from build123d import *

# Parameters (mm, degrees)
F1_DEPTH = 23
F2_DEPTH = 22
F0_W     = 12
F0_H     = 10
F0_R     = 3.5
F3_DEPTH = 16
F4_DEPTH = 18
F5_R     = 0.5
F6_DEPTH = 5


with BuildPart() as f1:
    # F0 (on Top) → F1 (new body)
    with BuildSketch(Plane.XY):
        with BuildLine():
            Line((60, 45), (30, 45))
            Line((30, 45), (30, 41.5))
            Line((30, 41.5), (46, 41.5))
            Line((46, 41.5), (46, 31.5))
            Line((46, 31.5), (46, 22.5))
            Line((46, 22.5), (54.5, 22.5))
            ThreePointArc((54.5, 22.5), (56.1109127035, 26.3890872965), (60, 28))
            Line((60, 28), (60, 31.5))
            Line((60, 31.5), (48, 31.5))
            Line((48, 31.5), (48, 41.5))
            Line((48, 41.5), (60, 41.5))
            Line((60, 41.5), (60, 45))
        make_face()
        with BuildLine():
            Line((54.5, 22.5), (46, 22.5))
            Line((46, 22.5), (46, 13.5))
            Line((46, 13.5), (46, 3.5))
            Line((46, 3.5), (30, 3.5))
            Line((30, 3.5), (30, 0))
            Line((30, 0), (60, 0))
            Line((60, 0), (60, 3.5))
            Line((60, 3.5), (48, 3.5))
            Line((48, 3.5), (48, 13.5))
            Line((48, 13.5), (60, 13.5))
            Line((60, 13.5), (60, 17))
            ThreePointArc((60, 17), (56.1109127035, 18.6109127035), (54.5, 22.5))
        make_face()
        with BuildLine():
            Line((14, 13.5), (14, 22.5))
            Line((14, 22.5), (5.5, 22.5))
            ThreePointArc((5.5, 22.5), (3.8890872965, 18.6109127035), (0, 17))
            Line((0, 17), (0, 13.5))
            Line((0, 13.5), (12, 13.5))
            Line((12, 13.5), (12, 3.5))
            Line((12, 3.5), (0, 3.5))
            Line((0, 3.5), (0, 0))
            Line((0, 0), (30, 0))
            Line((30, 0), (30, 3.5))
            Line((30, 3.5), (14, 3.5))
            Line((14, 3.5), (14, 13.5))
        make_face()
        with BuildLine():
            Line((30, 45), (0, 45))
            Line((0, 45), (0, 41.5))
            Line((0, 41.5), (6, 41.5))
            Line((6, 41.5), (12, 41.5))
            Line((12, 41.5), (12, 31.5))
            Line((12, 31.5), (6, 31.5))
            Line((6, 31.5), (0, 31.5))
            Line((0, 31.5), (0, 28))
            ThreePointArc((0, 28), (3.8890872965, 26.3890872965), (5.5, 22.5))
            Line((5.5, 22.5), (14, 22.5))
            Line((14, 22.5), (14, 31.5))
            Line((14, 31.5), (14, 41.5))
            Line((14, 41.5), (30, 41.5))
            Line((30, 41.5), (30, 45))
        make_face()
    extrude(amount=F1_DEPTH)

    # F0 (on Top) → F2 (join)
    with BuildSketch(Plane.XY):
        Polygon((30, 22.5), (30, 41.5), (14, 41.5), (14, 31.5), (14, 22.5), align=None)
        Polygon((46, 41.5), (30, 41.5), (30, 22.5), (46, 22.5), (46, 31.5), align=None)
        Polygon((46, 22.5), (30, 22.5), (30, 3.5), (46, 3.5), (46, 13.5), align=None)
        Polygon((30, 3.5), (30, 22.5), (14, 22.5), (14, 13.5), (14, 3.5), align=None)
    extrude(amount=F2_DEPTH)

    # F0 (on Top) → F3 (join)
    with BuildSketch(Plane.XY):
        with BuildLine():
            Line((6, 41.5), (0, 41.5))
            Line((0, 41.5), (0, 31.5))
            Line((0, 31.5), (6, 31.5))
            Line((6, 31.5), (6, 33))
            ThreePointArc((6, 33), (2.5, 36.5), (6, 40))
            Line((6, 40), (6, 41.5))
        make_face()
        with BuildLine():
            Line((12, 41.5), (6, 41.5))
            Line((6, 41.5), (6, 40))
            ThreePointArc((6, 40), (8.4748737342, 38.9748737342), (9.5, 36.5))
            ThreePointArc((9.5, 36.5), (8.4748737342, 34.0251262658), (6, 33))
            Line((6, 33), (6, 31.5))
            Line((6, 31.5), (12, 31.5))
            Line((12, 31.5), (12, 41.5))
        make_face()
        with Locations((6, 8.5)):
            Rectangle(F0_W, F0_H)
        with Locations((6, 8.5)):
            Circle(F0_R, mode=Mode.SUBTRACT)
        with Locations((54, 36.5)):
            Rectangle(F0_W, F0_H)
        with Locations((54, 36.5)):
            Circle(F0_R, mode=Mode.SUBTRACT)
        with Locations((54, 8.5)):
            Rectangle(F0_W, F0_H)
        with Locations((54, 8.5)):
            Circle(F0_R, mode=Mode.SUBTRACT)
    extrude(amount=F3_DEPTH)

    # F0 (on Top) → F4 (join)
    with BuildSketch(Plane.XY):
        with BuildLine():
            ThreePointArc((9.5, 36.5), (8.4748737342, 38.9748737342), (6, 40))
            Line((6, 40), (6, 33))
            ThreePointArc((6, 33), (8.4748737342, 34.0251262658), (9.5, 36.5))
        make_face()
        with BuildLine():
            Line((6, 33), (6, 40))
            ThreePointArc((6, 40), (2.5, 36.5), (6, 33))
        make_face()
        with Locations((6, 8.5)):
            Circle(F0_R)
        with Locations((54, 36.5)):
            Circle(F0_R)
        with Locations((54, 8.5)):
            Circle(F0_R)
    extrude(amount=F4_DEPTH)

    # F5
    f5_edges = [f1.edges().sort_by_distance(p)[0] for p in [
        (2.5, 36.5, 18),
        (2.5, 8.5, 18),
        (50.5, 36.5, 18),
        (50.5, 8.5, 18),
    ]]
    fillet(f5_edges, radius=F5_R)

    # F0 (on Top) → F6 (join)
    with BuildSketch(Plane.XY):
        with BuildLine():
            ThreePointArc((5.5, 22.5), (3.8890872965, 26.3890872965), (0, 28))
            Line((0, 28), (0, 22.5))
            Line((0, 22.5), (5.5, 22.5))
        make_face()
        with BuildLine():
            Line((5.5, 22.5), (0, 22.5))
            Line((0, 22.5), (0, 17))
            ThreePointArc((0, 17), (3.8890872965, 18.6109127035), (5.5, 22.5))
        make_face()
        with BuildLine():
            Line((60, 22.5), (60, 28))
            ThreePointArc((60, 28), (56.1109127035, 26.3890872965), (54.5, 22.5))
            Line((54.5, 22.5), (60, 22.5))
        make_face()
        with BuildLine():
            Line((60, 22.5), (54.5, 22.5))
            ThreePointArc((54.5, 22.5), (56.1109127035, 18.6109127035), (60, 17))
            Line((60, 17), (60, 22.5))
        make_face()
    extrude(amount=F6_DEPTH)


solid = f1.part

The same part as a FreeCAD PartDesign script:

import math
import FreeCAD as App
import Part
import Sketcher
from FreeCAD import Vector


def edges_at(feature, points):
    """Names of the edges that pass closest to the given points."""
    edges = feature.Shape.Edges
    near = lambda p: min(range(len(edges)), key=lambda i: edges[i].distToShape(Part.Vertex(*p))[0])
    return sorted({f"Edge{near(p) + 1}" for p in points})


def add_polygon(sketch, points):
    """Adds a closed chain of lines whose ends are joined by coincident constraints."""
    first, n = sketch.GeometryCount, len(points)
    for a, b in zip(points, points[1:] + points[:1]):
        sketch.addGeometry(Part.LineSegment(App.Vector(*a, 0), App.Vector(*b, 0)), False)
    for i in range(n):
        sketch.addConstraint(Sketcher.Constraint("Coincident", first + i, 2, first + (i + 1) % n, 1))

doc = App.newDocument("Part")
body = doc.addObject("PartDesign::Body", "Body")

sketch1 = body.newObject("Sketcher::SketchObject", "Sketch")
sketch1.AttachmentSupport = (doc.getObject("XY_Plane"), [""])
sketch1.MapMode = "FlatFace"
sketch1.addGeometry(Part.LineSegment(Vector(60, 45, 0), Vector(0, 45, 0)), False)
sketch1.addGeometry(Part.LineSegment(Vector(0, 45, 0), Vector(0, 41.5, 0)), False)
sketch1.addGeometry(Part.LineSegment(Vector(0, 41.5, 0), Vector(12, 41.5, 0)), False)
sketch1.addGeometry(Part.LineSegment(Vector(12, 41.5, 0), Vector(12, 31.5, 0)), False)
sketch1.addGeometry(Part.LineSegment(Vector(12, 31.5, 0), Vector(0, 31.5, 0)), False)
sketch1.addGeometry(Part.LineSegment(Vector(0, 31.5, 0), Vector(0, 28, 0)), False)
sketch1.addGeometry(Part.ArcOfCircle(Part.Circle(Vector(0, 22.5, 0), Vector(0, 0, 1), 5.5), math.radians(0), math.radians(90)), False)
sketch1.addGeometry(Part.ArcOfCircle(Part.Circle(Vector(0, 22.5, 0), Vector(0, 0, 1), 5.5), math.radians(-90), math.radians(0)), False)
sketch1.addGeometry(Part.LineSegment(Vector(0, 17, 0), Vector(0, 13.5, 0)), False)
sketch1.addGeometry(Part.LineSegment(Vector(0, 13.5, 0), Vector(12, 13.5, 0)), False)
sketch1.addGeometry(Part.LineSegment(Vector(12, 13.5, 0), Vector(12, 3.5, 0)), False)
sketch1.addGeometry(Part.LineSegment(Vector(12, 3.5, 0), Vector(0, 3.5, 0)), False)
sketch1.addGeometry(Part.LineSegment(Vector(0, 3.5, 0), Vector(0, 0, 0)), False)
sketch1.addGeometry(Part.LineSegment(Vector(0, 0, 0), Vector(60, 0, 0)), False)
sketch1.addGeometry(Part.LineSegment(Vector(60, 0, 0), Vector(60, 3.5, 0)), False)
sketch1.addGeometry(Part.LineSegment(Vector(60, 3.5, 0), Vector(48, 3.5, 0)), False)
sketch1.addGeometry(Part.LineSegment(Vector(48, 3.5, 0), Vector(48, 13.5, 0)), False)
sketch1.addGeometry(Part.LineSegment(Vector(48, 13.5, 0), Vector(60, 13.5, 0)), False)
sketch1.addGeometry(Part.LineSegment(Vector(60, 13.5, 0), Vector(60, 17, 0)), False)
sketch1.addGeometry(Part.ArcOfCircle(Part.Circle(Vector(60, 22.5, 0), Vector(0, 0, 1), 5.5), math.radians(180), math.radians(270)), False)
sketch1.addGeometry(Part.ArcOfCircle(Part.Circle(Vector(60, 22.5, 0), Vector(0, 0, 1), 5.5), math.radians(90), math.radians(180)), False)
sketch1.addGeometry(Part.LineSegment(Vector(60, 28, 0), Vector(60, 31.5, 0)), False)
sketch1.addGeometry(Part.LineSegment(Vector(60, 31.5, 0), Vector(48, 31.5, 0)), False)
sketch1.addGeometry(Part.LineSegment(Vector(48, 31.5, 0), Vector(48, 41.5, 0)), False)
sketch1.addGeometry(Part.LineSegment(Vector(48, 41.5, 0), Vector(60, 41.5, 0)), False)
sketch1.addGeometry(Part.LineSegment(Vector(60, 41.5, 0), Vector(60, 45, 0)), False)
add_polygon(sketch1, [(46, 41.5), (46, 3.5), (14, 3.5), (14, 41.5)])
sketch1.addConstraint([
    Sketcher.Constraint("Coincident", 0, 2, 1, 1),
    Sketcher.Constraint("Coincident", 1, 2, 2, 1),
    Sketcher.Constraint("Coincident", 2, 2, 3, 1),
    Sketcher.Constraint("Coincident", 3, 2, 4, 1),
    Sketcher.Constraint("Coincident", 4, 2, 5, 1),
    Sketcher.Constraint("Coincident", 5, 2, 6, 2),
    Sketcher.Constraint("Tangent", 6, 1, 7, 2),
    Sketcher.Constraint("Coincident", 7, 1, 8, 1),
    Sketcher.Constraint("Coincident", 8, 2, 9, 1),
    Sketcher.Constraint("Coincident", 9, 2, 10, 1),
    Sketcher.Constraint("Coincident", 10, 2, 11, 1),
    Sketcher.Constraint("Coincident", 11, 2, 12, 1),
    Sketcher.Constraint("Coincident", 12, 2, 13, 1),
    Sketcher.Constraint("Coincident", 13, 2, 14, 1),
    Sketcher.Constraint("Coincident", 14, 2, 15, 1),
    Sketcher.Constraint("Coincident", 15, 2, 16, 1),
    Sketcher.Constraint("Coincident", 16, 2, 17, 1),
    Sketcher.Constraint("Coincident", 17, 2, 18, 1),
    Sketcher.Constraint("Coincident", 18, 2, 19, 2),
    Sketcher.Constraint("Tangent", 19, 1, 20, 2),
    Sketcher.Constraint("Coincident", 20, 1, 21, 1),
    Sketcher.Constraint("Coincident", 21, 2, 22, 1),
    Sketcher.Constraint("Coincident", 22, 2, 23, 1),
    Sketcher.Constraint("Coincident", 23, 2, 24, 1),
    Sketcher.Constraint("Coincident", 24, 2, 25, 1),
    Sketcher.Constraint("Coincident", 25, 2, 0, 1),
    Sketcher.Constraint("Horizontal", 0),
    Sketcher.Constraint("Vertical", 1),
    Sketcher.Constraint("Horizontal", 2),
    Sketcher.Constraint("Vertical", 3),
    Sketcher.Constraint("Horizontal", 4),
    Sketcher.Constraint("Vertical", 5),
    Sketcher.Constraint("Vertical", 8),
    Sketcher.Constraint("Horizontal", 9),
    Sketcher.Constraint("Vertical", 10),
    Sketcher.Constraint("Horizontal", 11),
    Sketcher.Constraint("Vertical", 12),
    Sketcher.Constraint("Horizontal", 13),
    Sketcher.Constraint("Vertical", 14),
    Sketcher.Constraint("Horizontal", 15),
    Sketcher.Constraint("Vertical", 16),
    Sketcher.Constraint("Horizontal", 17),
    Sketcher.Constraint("Vertical", 18),
    Sketcher.Constraint("Vertical", 21),
    Sketcher.Constraint("Horizontal", 22),
    Sketcher.Constraint("Vertical", 23),
    Sketcher.Constraint("Horizontal", 24),
    Sketcher.Constraint("Vertical", 25),
    Sketcher.Constraint("Vertical", 26),
    Sketcher.Constraint("Horizontal", 27),
    Sketcher.Constraint("Vertical", 28),
    Sketcher.Constraint("Horizontal", 29),
    Sketcher.Constraint("Coincident", 12, 2, -1, 1),
    Sketcher.Constraint("Equal", 6, 7),
    Sketcher.Constraint("Equal", 7, 19),
    Sketcher.Constraint("Equal", 19, 20),
    Sketcher.Constraint("PointOnObject", 6, 3, -2),
    Sketcher.Constraint("PointOnObject", 0, 2, -2),
    Sketcher.Constraint("PointOnObject", 4, 2, -2),
    Sketcher.Constraint("PointOnObject", 7, 1, -2),
    Sketcher.Constraint("Horizontal", 7, 3, 19, 3),
    Sketcher.Constraint("Horizontal", 20, 3, 6, 1),
    Sketcher.Constraint("Horizontal", 11, 2, 14, 2),
    Sketcher.Constraint("Horizontal", 9, 2, 16, 2),
    Sketcher.Constraint("Horizontal", 6, 1, 19, 1),
    Sketcher.Constraint("Horizontal", 4, 2, 21, 2),
    Sketcher.Constraint("Horizontal", 2, 2, 23, 2),
    Sketcher.Constraint("Horizontal", 15, 2, 26, 2),
    Sketcher.Constraint("Horizontal", 24, 2, 28, 2),
    Sketcher.Constraint("Vertical", 3, 2, 9, 2),
    Sketcher.Constraint("Vertical", 20, 3, 13, 2),
    Sketcher.Constraint("Vertical", 14, 2, 17, 2),
    Sketcher.Constraint("Vertical", 18, 2, 20, 1),
    Sketcher.Constraint("Vertical", 16, 2, 22, 2),
    Sketcher.Constraint("Vertical", 21, 2, 24, 2),
    Sketcher.Constraint("Equal", 11, 15),
    Sketcher.Constraint("Equal", 1, 5),
    Sketcher.Constraint("Equal", 5, 8),
    Sketcher.Constraint("Equal", 3, 10),
    Sketcher.Constraint("Equal", 8, 12),
    Sketcher.Constraint("Radius", 6, 5.5),
    Sketcher.Constraint("DistanceX", 0, 2, 0, 1, 60.0),
    Sketcher.Constraint("DistanceX", 2, 1, 2, 2, 12.0),
    Sketcher.Constraint("DistanceX", 27, 2, 27, 1, 32.0),
    Sketcher.Constraint("DistanceY", 3, 2, 3, 1, 10.0),
    Sketcher.Constraint("DistanceY", 26, 2, 26, 1, 38.0),
    Sketcher.Constraint("DistanceX", -1, 1, 26, 2, 46.0),
])
pad1 = body.newObject("PartDesign::Pad", "Pad")
pad1.Profile = sketch1
pad1.Length = 23

sketch2 = body.newObject("Sketcher::SketchObject", "Sketch001")
sketch2.AttachmentSupport = (doc.getObject("XY_Plane"), [""])
sketch2.MapMode = "FlatFace"
add_polygon(sketch2, [(14, 41.5), (14, 3.5), (46, 3.5), (46, 41.5)])
sketch2.addConstraint([
    Sketcher.Constraint("Vertical", 0),
    Sketcher.Constraint("Horizontal", 1),
    Sketcher.Constraint("Vertical", 2),
    Sketcher.Constraint("Horizontal", 3),
    Sketcher.Constraint("DistanceX", 1, 1, 1, 2, 32.0),
    Sketcher.Constraint("DistanceY", 0, 2, 0, 1, 38.0),
    Sketcher.Constraint("DistanceX", -1, 1, 0, 2, 14.0),
    Sketcher.Constraint("DistanceY", -1, 1, 0, 2, 3.5),
])
pad2 = body.newObject("PartDesign::Pad", "Pad001")
pad2.Profile = sketch2
pad2.Length = 22

sketch3 = body.newObject("Sketcher::SketchObject", "Sketch002")
sketch3.AttachmentSupport = (doc.getObject("XY_Plane"), [""])
sketch3.MapMode = "FlatFace"
add_polygon(sketch3, [(0, 41.5), (0, 31.5), (12, 31.5), (12, 41.5)])
sketch3.addGeometry(Part.ArcOfCircle(Part.Circle(Vector(6, 36.5, 0), Vector(0, 0, 1), 3.5), math.radians(90), math.radians(270)), False)
sketch3.addGeometry(Part.ArcOfCircle(Part.Circle(Vector(6, 36.5, 0), Vector(0, 0, 1), 3.5), math.radians(0), math.radians(90)), False)
sketch3.addGeometry(Part.ArcOfCircle(Part.Circle(Vector(6, 36.5, 0), Vector(0, 0, 1), 3.5), math.radians(-90), math.radians(0)), False)
add_polygon(sketch3, [(0, 13.5), (0, 3.5), (12, 3.5), (12, 13.5)])
sketch3.addGeometry(Part.Circle(Vector(6, 8.5, 0), Vector(0, 0, 1), 3.5), False)
add_polygon(sketch3, [(48, 41.5), (48, 31.5), (60, 31.5), (60, 41.5)])
sketch3.addGeometry(Part.Circle(Vector(54, 36.5, 0), Vector(0, 0, 1), 3.5), False)
add_polygon(sketch3, [(48, 13.5), (48, 3.5), (60, 3.5), (60, 13.5)])
sketch3.addGeometry(Part.Circle(Vector(54, 8.5, 0), Vector(0, 0, 1), 3.5), False)
sketch3.addConstraint([
    Sketcher.Constraint("Tangent", 4, 1, 5, 2),
    Sketcher.Constraint("Tangent", 5, 1, 6, 2),
    Sketcher.Constraint("Tangent", 6, 1, 4, 2),
    Sketcher.Constraint("Vertical", 0),
    Sketcher.Constraint("Horizontal", 1),
    Sketcher.Constraint("Vertical", 2),
    Sketcher.Constraint("Horizontal", 3),
    Sketcher.Constraint("Vertical", 7),
    Sketcher.Constraint("Horizontal", 8),
    Sketcher.Constraint("Vertical", 9),
    Sketcher.Constraint("Horizontal", 10),
    Sketcher.Constraint("Vertical", 12),
    Sketcher.Constraint("Horizontal", 13),
    Sketcher.Constraint("Vertical", 14),
    Sketcher.Constraint("Horizontal", 15),
    Sketcher.Constraint("Vertical", 17),
    Sketcher.Constraint("Horizontal", 18),
    Sketcher.Constraint("Vertical", 19),
    Sketcher.Constraint("Horizontal", 20),
    Sketcher.Constraint("Equal", 6, 11),
    Sketcher.Constraint("Equal", 11, 16),
    Sketcher.Constraint("Equal", 16, 21),
    Sketcher.Constraint("PointOnObject", 0, 2, -2),
    Sketcher.Constraint("PointOnObject", 7, 2, -2),
    Sketcher.Constraint("Horizontal", 6, 3, 16, 3),
    Sketcher.Constraint("Horizontal", 11, 3, 21, 3),
    Sketcher.Constraint("Horizontal", 16, 3, 5, 1),
    Sketcher.Constraint("Horizontal", 1, 2, 12, 2),
    Sketcher.Constraint("Horizontal", 3, 2, 14, 2),
    Sketcher.Constraint("Horizontal", 8, 2, 17, 2),
    Sketcher.Constraint("Horizontal", 10, 2, 19, 2),
    Sketcher.Constraint("Vertical", 6, 3, 11, 3),
    Sketcher.Constraint("Vertical", 16, 3, 21, 3),
    Sketcher.Constraint("Vertical", 11, 3, 4, 1),
    Sketcher.Constraint("Vertical", 4, 1, 6, 1),
    Sketcher.Constraint("Vertical", 2, 2, 8, 2),
    Sketcher.Constraint("Vertical", 15, 2, 17, 2),
    Sketcher.Constraint("Vertical", 14, 2, 18, 2),
    Sketcher.Constraint("Equal", 10, 13),
    Sketcher.Constraint("Equal", 2, 7),
    Sketcher.Constraint("Diameter", 11, 7.0),
    Sketcher.Constraint("DistanceX", 1, 1, 1, 2, 12.0),
    Sketcher.Constraint("DistanceY", 0, 2, 0, 1, 10.0),
    Sketcher.Constraint("DistanceX", -1, 1, 4, 3, 6.0),
    Sketcher.Constraint("DistanceX", -1, 1, 16, 3, 54.0),
    Sketcher.Constraint("DistanceY", -1, 1, 4, 1, 40.0),
    Sketcher.Constraint("DistanceX", -1, 1, 12, 2, 48.0),
    Sketcher.Constraint("DistanceY", 11, 3, 4, 3, 28.0),
    Sketcher.Constraint("DistanceY", 0, 2, 4, 3, 5.0),
    Sketcher.Constraint("DistanceY", 7, 2, 11, 3, 5.0),
])
pad3 = body.newObject("PartDesign::Pad", "Pad002")
pad3.Profile = sketch3
pad3.Length = 16

sketch4 = body.newObject("Sketcher::SketchObject", "Sketch003")
sketch4.AttachmentSupport = (doc.getObject("XY_Plane"), [""])
sketch4.MapMode = "FlatFace"
sketch4.addGeometry([
    Part.ArcOfCircle(Part.Circle(Vector(6, 36.5, 0), Vector(0, 0, 1), 3.5), math.radians(0), math.radians(90)),
    Part.ArcOfCircle(Part.Circle(Vector(6, 36.5, 0), Vector(0, 0, 1), 3.5), math.radians(90), math.radians(270)),
    Part.ArcOfCircle(Part.Circle(Vector(6, 36.5, 0), Vector(0, 0, 1), 3.5), math.radians(-90), math.radians(0)),
    Part.Circle(Vector(6, 8.5, 0), Vector(0, 0, 1), 3.5),
    Part.Circle(Vector(54, 36.5, 0), Vector(0, 0, 1), 3.5),
    Part.Circle(Vector(54, 8.5, 0), Vector(0, 0, 1), 3.5),
], False)
sketch4.addConstraint([
    Sketcher.Constraint("Tangent", 0, 2, 1, 1),
    Sketcher.Constraint("Tangent", 1, 2, 2, 1),
    Sketcher.Constraint("Tangent", 2, 2, 0, 1),
    Sketcher.Constraint("Equal", 2, 3),
    Sketcher.Constraint("Equal", 3, 4),
    Sketcher.Constraint("Equal", 4, 5),
    Sketcher.Constraint("Horizontal", 2, 3, 4, 3),
    Sketcher.Constraint("Horizontal", 3, 3, 5, 3),
    Sketcher.Constraint("Horizontal", 4, 3, 2, 2),
    Sketcher.Constraint("Vertical", 2, 3, 3, 3),
    Sketcher.Constraint("Vertical", 4, 3, 5, 3),
    Sketcher.Constraint("Vertical", 3, 3, 0, 2),
    Sketcher.Constraint("Vertical", 0, 2, 1, 2),
    Sketcher.Constraint("Diameter", 3, 7.0),
    Sketcher.Constraint("DistanceX", -1, 1, 0, 3, 6.0),
    Sketcher.Constraint("DistanceX", -1, 1, 4, 3, 54.0),
    Sketcher.Constraint("DistanceY", -1, 1, 0, 2, 40.0),
    Sketcher.Constraint("DistanceY", 3, 3, 0, 3, 28.0),
])
pad4 = body.newObject("PartDesign::Pad", "Pad003")
pad4.Profile = sketch4
pad4.Length = 18
doc.recompute()

fillet = body.newObject("PartDesign::Fillet", "Fillet")
fillet.Base = (pad4, edges_at(pad4, [
    (2.5, 36.5, 18),
    (2.5, 8.5, 18),
    (50.5, 36.5, 18),
    (50.5, 8.5, 18),
]))
fillet.Radius = 0.5

sketch5 = body.newObject("Sketcher::SketchObject", "Sketch004")
sketch5.AttachmentSupport = (doc.getObject("XY_Plane"), [""])
sketch5.MapMode = "FlatFace"
sketch5.addGeometry([
    Part.ArcOfCircle(Part.Circle(Vector(0, 22.5, 0), Vector(0, 0, 1), 5.5), math.radians(0), math.radians(90)),
    Part.LineSegment(Vector(0, 28, 0), Vector(0, 17, 0)),
    Part.ArcOfCircle(Part.Circle(Vector(0, 22.5, 0), Vector(0, 0, 1), 5.5), math.radians(-90), math.radians(0)),
    Part.ArcOfCircle(Part.Circle(Vector(60, 22.5, 0), Vector(0, 0, 1), 5.5), math.radians(90), math.radians(180)),
    Part.ArcOfCircle(Part.Circle(Vector(60, 22.5, 0), Vector(0, 0, 1), 5.5), math.radians(180), math.radians(270)),
    Part.LineSegment(Vector(60, 17, 0), Vector(60, 28, 0)),
], False)
sketch5.addConstraint([
    Sketcher.Constraint("Coincident", 0, 2, 1, 1),
    Sketcher.Constraint("Coincident", 1, 2, 2, 1),
    Sketcher.Constraint("Tangent", 2, 2, 0, 1),
    Sketcher.Constraint("Tangent", 3, 2, 4, 1),
    Sketcher.Constraint("Coincident", 4, 2, 5, 1),
    Sketcher.Constraint("Coincident", 5, 2, 3, 1),
    Sketcher.Constraint("Vertical", 1),
    Sketcher.Constraint("Vertical", 5),
    Sketcher.Constraint("Equal", 0, 2),
    Sketcher.Constraint("Equal", 2, 3),
    Sketcher.Constraint("Equal", 3, 4),
    Sketcher.Constraint("PointOnObject", 0, 3, -2),
    Sketcher.Constraint("PointOnObject", 0, 2, -2),
    Sketcher.Constraint("Horizontal", 2, 3, 3, 3),
    Sketcher.Constraint("Horizontal", 4, 3, 2, 2),
    Sketcher.Constraint("Horizontal", 2, 2, 3, 2),
    Sketcher.Constraint("Vertical", 3, 3, 4, 2),
    Sketcher.Constraint("Radius", 0, 5.5),
    Sketcher.Constraint("DistanceX", -1, 1, 3, 3, 60.0),
    Sketcher.Constraint("DistanceY", -1, 1, 0, 2, 28.0),
])
pad5 = body.newObject("PartDesign::Pad", "Pad004")
pad5.Profile = sketch5
pad5.Length = 5

doc.recompute()
